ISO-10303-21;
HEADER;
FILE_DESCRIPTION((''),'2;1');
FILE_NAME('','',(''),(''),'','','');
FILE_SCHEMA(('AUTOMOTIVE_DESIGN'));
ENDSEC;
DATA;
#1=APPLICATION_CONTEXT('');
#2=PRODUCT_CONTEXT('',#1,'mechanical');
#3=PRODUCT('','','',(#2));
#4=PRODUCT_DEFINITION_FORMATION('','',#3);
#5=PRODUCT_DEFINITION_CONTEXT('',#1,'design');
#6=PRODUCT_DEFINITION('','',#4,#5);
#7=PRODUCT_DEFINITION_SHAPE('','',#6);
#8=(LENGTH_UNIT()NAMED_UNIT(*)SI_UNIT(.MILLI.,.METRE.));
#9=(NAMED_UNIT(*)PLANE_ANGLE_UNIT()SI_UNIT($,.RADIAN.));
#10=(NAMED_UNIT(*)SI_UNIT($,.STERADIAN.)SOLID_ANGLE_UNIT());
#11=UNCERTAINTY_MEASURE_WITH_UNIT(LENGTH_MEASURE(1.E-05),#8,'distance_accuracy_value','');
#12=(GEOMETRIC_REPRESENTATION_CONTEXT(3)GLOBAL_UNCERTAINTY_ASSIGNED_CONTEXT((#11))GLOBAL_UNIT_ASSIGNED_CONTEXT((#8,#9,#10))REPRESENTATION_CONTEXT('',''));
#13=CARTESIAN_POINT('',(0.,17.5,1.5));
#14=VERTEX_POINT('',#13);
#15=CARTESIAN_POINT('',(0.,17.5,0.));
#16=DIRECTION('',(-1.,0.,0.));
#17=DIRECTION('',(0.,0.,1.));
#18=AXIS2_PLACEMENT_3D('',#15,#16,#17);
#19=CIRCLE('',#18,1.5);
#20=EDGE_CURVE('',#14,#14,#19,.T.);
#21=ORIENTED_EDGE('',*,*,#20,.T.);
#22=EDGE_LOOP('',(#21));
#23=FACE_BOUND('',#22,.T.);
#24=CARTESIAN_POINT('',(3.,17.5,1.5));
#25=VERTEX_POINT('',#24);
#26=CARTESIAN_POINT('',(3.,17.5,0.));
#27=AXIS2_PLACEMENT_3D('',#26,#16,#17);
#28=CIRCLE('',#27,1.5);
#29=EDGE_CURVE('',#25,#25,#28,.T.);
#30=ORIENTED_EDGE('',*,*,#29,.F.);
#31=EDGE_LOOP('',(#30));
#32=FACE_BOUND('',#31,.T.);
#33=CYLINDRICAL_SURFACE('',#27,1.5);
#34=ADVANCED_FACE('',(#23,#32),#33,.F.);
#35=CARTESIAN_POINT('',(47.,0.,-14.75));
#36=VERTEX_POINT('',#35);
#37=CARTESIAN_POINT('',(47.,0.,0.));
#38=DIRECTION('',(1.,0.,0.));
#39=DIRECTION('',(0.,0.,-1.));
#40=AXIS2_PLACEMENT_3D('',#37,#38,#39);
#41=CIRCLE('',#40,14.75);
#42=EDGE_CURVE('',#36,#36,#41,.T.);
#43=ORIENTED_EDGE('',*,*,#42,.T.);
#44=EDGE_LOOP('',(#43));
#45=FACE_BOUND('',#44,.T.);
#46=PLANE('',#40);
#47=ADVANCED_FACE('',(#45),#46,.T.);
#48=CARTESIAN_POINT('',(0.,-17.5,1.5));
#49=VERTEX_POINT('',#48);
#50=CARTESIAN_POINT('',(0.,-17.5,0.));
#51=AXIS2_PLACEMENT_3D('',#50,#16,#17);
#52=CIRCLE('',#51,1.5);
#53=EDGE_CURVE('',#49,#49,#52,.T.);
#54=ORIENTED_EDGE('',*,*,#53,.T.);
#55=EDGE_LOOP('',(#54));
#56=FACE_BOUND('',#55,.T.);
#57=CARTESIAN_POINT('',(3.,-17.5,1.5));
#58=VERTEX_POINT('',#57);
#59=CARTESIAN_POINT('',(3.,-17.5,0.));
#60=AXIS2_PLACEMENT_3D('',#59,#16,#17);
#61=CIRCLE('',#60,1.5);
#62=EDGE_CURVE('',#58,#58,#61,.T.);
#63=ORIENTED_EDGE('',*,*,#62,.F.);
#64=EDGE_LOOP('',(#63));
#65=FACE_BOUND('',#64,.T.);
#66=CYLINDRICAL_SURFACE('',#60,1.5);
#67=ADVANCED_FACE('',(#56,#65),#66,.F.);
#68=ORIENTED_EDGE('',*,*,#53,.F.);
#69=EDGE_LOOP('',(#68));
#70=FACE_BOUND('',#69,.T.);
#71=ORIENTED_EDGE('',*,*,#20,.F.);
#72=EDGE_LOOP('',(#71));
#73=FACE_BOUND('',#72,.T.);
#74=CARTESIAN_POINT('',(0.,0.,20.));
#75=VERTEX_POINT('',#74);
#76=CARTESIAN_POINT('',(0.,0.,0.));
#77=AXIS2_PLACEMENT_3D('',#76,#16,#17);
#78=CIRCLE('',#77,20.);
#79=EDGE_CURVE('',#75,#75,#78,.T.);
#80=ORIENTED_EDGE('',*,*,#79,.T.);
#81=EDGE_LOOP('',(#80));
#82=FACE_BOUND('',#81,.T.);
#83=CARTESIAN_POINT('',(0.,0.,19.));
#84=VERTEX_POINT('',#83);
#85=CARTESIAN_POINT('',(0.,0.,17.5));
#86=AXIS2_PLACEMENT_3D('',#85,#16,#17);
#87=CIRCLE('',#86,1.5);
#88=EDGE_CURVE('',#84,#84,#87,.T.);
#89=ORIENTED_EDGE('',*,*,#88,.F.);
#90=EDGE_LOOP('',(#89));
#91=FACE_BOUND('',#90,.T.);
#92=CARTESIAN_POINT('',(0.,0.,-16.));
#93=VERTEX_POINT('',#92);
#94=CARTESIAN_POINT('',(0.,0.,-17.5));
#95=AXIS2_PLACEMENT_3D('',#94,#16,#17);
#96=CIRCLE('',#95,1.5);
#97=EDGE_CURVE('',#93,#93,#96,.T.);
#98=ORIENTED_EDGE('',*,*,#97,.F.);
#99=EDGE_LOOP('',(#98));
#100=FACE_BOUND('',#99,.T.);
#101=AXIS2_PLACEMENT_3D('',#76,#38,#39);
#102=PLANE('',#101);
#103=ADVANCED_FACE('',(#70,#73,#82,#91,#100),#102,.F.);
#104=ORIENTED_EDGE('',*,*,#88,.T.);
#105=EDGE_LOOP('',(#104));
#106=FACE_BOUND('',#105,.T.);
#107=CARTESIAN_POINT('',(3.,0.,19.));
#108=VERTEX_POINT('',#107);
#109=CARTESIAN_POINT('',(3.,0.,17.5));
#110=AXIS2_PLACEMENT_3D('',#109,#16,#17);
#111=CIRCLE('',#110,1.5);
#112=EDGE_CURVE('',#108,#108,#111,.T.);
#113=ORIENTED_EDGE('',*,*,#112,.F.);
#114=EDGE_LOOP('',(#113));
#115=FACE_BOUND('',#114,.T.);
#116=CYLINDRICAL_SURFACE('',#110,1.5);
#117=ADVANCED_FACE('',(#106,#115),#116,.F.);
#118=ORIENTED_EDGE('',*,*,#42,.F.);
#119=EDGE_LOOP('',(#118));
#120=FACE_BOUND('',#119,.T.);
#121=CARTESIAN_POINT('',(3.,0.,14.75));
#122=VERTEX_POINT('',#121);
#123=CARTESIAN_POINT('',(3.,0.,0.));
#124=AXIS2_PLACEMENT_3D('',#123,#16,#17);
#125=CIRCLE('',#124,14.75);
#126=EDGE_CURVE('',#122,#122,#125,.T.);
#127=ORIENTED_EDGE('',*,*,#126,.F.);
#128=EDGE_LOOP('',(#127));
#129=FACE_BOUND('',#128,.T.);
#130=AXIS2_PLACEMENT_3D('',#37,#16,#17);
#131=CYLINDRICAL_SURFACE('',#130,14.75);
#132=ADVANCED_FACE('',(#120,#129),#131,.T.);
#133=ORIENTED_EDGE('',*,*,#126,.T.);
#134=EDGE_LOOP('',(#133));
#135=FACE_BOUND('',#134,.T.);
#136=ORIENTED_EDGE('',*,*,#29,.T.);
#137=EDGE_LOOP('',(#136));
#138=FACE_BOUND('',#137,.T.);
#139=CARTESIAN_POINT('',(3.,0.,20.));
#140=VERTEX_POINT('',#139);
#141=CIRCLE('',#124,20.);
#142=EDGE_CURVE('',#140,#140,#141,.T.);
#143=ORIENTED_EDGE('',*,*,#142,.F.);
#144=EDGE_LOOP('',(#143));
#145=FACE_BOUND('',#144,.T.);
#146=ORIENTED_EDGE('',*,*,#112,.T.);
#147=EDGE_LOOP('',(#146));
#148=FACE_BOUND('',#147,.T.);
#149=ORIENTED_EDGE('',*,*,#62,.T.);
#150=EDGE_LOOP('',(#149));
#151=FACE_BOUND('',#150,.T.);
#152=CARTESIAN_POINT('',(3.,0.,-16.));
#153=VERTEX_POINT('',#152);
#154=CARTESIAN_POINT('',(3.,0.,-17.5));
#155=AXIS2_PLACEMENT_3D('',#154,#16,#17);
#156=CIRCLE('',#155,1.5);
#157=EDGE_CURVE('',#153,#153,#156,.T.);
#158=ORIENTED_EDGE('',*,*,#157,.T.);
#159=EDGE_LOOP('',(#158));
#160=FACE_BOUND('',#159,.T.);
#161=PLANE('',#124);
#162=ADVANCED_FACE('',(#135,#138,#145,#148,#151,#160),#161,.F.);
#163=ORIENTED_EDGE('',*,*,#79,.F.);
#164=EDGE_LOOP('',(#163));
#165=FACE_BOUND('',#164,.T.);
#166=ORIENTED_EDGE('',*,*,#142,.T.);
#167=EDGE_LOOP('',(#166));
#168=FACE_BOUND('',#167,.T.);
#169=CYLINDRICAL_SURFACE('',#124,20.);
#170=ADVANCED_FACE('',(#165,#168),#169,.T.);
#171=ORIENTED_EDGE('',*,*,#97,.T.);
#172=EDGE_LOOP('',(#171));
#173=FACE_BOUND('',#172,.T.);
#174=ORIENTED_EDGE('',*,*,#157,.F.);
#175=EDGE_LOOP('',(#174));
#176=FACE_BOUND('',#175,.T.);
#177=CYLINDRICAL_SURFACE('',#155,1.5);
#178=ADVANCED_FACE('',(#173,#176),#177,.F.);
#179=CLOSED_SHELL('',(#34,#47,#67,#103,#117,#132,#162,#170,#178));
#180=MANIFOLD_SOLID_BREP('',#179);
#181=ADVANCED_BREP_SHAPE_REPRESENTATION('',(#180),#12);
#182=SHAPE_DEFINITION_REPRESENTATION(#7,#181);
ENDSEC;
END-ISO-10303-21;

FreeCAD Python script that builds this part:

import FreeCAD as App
import Part
import Sketcher
Q = App.Units.Quantity

doc = App.newDocument("Part")
body = doc.addObject("PartDesign::Body", "Body")

sketch1 = body.newObject("Sketcher::SketchObject", "Sketch")
sketch1.AttachmentSupport = (doc.getObject("YZ_Plane"), [""])
sketch1.MapMode = "FlatFace"
sketch1.addGeometry(Part.Circle(App.Vector(0, 0, 0), App.Vector(0, 0, 1), 14.75), False)
sketch1.addConstraint([
    Sketcher.Constraint("Coincident", 0, 3, -1, 1),
    Sketcher.Constraint("Diameter", 0, Q("29.5 mm")),
])
pad1 = body.newObject("PartDesign::Pad", "Pad")
pad1.Profile = sketch1
pad1.Length = 47

sketch2 = body.newObject("Sketcher::SketchObject", "Sketch001")
sketch2.AttachmentSupport = (doc.getObject("YZ_Plane"), [""])
sketch2.MapMode = "FlatFace"
sketch2.addGeometry([
    Part.Circle(App.Vector(0, 0, 0), App.Vector(0, 0, 1), 20),
    Part.Circle(App.Vector(-17.5, 0, 0), App.Vector(0, 0, 1), 1.5),
    Part.Circle(App.Vector(0, -17.5, 0), App.Vector(0, 0, 1), 1.5),
    Part.Circle(App.Vector(0, 17.5, 0), App.Vector(0, 0, 1), 1.5),
    Part.Circle(App.Vector(17.5, 0, 0), App.Vector(0, 0, 1), 1.5),
], False)
sketch2.addConstraint([
    Sketcher.Constraint("Coincident", 0, 3, -1, 1),
    Sketcher.Constraint("Equal", 1, 2),
    Sketcher.Constraint("Equal", 2, 3),
    Sketcher.Constraint("Equal", 3, 4),
    Sketcher.Constraint("Symmetric", 2, 3, 3, 3, -1, 1),
    Sketcher.Constraint("Symmetric", 1, 3, 4, 3, -1, 1),
    Sketcher.Constraint("PointOnObject", 1, 3, -1),
    Sketcher.Constraint("PointOnObject", 2, 3, -2),
    Sketcher.Constraint("Diameter", 0, Q("40 mm")),
    Sketcher.Constraint("Diameter", 1, Q("3 mm")),
    Sketcher.Constraint("DistanceY", 2, 3, 3, 3, Q("35 mm")),
    Sketcher.Constraint("DistanceX", 1, 3, 4, 3, Q("35 mm")),
])
pad2 = body.newObject("PartDesign::Pad", "Pad001")
pad2.Profile = sketch2
pad2.Length = 3

doc.recompute()
